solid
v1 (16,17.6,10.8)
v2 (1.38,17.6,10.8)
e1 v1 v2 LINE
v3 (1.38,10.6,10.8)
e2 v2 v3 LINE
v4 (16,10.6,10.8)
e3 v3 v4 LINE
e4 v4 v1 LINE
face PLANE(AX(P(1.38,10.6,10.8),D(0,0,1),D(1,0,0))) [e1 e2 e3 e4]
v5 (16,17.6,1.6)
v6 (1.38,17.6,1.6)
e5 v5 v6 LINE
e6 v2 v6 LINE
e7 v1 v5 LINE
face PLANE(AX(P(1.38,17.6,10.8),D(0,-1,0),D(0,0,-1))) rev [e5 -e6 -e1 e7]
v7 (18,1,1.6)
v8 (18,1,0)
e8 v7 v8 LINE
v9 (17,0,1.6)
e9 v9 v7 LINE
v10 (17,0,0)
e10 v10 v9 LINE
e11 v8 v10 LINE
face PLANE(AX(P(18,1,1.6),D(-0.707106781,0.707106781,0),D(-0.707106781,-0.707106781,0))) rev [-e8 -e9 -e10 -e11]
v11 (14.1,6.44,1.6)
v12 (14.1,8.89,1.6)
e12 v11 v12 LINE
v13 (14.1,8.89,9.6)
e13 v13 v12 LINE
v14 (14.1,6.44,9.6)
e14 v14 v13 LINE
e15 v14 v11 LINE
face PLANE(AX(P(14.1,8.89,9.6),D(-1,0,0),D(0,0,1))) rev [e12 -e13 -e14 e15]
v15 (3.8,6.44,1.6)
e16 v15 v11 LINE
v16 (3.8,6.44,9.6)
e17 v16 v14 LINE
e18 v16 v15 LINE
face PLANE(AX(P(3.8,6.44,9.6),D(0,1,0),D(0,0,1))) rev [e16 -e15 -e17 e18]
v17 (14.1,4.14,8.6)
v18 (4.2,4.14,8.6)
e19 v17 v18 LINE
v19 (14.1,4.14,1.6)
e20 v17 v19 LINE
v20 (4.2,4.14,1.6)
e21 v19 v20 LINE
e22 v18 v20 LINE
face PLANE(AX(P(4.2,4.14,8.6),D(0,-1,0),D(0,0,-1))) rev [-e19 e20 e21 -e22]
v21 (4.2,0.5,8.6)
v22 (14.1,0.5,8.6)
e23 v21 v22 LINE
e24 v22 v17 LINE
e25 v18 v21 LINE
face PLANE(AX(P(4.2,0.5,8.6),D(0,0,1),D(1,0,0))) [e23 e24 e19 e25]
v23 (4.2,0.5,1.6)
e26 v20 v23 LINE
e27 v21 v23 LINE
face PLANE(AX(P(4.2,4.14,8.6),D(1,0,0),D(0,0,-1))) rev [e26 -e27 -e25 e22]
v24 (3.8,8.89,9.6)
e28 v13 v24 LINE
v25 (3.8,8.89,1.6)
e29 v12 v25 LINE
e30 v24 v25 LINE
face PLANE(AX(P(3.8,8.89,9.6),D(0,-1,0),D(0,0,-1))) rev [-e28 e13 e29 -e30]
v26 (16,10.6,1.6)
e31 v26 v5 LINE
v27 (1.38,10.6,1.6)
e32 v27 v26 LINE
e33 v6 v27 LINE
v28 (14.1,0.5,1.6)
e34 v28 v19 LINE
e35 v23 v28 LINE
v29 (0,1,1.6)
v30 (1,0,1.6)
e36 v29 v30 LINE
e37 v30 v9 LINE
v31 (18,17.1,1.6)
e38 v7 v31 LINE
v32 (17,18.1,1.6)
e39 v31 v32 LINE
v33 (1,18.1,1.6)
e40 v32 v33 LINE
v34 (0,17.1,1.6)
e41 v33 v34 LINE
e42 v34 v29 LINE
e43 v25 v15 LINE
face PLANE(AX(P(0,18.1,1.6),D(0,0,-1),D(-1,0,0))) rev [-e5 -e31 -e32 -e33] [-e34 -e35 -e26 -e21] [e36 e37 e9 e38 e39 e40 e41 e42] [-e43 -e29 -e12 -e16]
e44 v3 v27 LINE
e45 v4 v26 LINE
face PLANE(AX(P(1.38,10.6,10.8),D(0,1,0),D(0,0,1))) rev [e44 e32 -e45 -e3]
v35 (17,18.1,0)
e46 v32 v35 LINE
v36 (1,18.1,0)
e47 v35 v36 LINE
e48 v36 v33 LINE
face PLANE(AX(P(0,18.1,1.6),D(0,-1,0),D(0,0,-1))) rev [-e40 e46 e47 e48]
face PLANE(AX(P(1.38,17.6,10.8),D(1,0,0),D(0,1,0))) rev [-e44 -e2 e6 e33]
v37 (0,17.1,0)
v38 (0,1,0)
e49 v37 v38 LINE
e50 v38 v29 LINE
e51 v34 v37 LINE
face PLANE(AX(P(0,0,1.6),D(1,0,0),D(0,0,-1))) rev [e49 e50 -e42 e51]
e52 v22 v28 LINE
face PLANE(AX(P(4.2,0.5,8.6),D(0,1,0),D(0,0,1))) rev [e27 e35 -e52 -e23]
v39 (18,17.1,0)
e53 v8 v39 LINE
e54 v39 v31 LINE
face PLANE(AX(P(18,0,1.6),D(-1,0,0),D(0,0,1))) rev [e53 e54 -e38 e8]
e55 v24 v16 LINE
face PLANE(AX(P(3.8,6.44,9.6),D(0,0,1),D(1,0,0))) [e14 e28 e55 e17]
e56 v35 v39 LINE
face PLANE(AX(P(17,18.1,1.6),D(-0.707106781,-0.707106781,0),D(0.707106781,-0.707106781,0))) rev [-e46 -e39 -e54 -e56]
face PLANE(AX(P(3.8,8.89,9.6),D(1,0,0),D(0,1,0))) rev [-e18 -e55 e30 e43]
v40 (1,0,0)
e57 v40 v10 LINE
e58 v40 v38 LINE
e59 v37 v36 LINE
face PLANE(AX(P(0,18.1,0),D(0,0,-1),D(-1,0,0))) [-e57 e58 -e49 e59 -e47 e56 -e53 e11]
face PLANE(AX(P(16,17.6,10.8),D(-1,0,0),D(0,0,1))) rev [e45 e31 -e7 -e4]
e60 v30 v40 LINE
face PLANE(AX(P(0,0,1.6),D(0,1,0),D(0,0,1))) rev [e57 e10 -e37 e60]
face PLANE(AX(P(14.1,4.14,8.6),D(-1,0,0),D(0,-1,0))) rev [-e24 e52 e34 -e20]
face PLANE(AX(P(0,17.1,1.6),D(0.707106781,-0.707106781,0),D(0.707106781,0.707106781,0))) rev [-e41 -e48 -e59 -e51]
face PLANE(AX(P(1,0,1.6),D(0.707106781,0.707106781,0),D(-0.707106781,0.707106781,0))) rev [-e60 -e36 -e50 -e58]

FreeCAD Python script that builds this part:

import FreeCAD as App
import Part
import Sketcher


def edges_at(feature, points):
    """Names of the edges that pass closest to the given points."""
    edges = feature.Shape.Edges
    near = lambda p: min(range(len(edges)), key=lambda i: edges[i].distToShape(Part.Vertex(*p))[0])
    return sorted({f"Edge{near(p) + 1}" for p in points})


def add_polygon(sketch, points):
    """Adds a closed chain of lines whose ends are joined by coincident constraints."""
    first, n = sketch.GeometryCount, len(points)
    for a, b in zip(points, points[1:] + points[:1]):
        sketch.addGeometry(Part.LineSegment(App.Vector(*a, 0), App.Vector(*b, 0)), False)
    for i in range(n):
        sketch.addConstraint(Sketcher.Constraint("Coincident", first + i, 2, first + (i + 1) % n, 1))

doc = App.newDocument("Part")
body = doc.addObject("PartDesign::Body", "Body")

sketch1 = doc.addObject("Sketcher::SketchObject", "Sketch")
body.addObject(sketch1)
sketch1.AttachmentSupport = (doc.XY_Plane, [""])
sketch1.MapMode = "FlatFace"
add_polygon(sketch1, [(0, 18), (0, 0), (18, 0), (18, 18)])
sketch1.addConstraint(Sketcher.Constraint("Vertical", 0))
sketch1.addConstraint(Sketcher.Constraint("Horizontal", 1))
sketch1.addConstraint(Sketcher.Constraint("Vertical", 2))
sketch1.addConstraint(Sketcher.Constraint("Horizontal", 3))
sketch1.addConstraint(Sketcher.Constraint("Coincident", 0, 2, -1, 1))
sketch1.addConstraint(Sketcher.Constraint("DistanceX", 1, 1, 1, 2, 18.0))
sketch1.addConstraint(Sketcher.Constraint("DistanceY", 0, 2, 0, 1, 18.1))
pad1 = doc.addObject("PartDesign::Pad", "Pad")
body.addObject(pad1)
pad1.Profile = sketch1
pad1.Length = 1.6
doc.recompute()

chamfer = doc.addObject("PartDesign::Chamfer", "Chamfer")
body.addObject(chamfer)
chamfer.Base = (pad1, edges_at(pad1, [
    (0, 18.1, 0.8),
    (18, 18.1, 0.8),
    (18, 0, 0.8),
    (0, 0, 0.8),
]))
chamfer.Size = 1

sketch2 = doc.addObject("Sketcher::SketchObject", "Sketch001")
body.addObject(sketch2)
sketch2.AttachmentSupport = (doc.XY_Plane, [""])
sketch2.MapMode = "FlatFace"
sketch2.AttachmentOffset = App.Placement(App.Vector(0, 0, 1.6), App.Rotation())
add_polygon(sketch2, [(4.2, 4.1), (4.2, 0.5), (14.1, 0.5), (14.1, 4.1)])
sketch2.addConstraint(Sketcher.Constraint("Vertical", 0))
sketch2.addConstraint(Sketcher.Constraint("Horizontal", 1))
sketch2.addConstraint(Sketcher.Constraint("Vertical", 2))
sketch2.addConstraint(Sketcher.Constraint("Horizontal", 3))
sketch2.addConstraint(Sketcher.Constraint("DistanceX", 1, 1, 1, 2, 9.9))
sketch2.addConstraint(Sketcher.Constraint("DistanceY", 0, 2, 0, 1, 3.64))
sketch2.addConstraint(Sketcher.Constraint("DistanceX", -1, 1, 0, 2, 4.2))
sketch2.addConstraint(Sketcher.Constraint("DistanceY", -1, 1, 0, 2, 0.5))
pad2 = doc.addObject("PartDesign::Pad", "Pad001")
body.addObject(pad2)
pad2.Profile = sketch2
pad2.Length = 7

sketch3 = doc.addObject("Sketcher::SketchObject", "Sketch002")
body.addObject(sketch3)
sketch3.AttachmentSupport = (doc.XY_Plane, [""])
sketch3.MapMode = "FlatFace"
sketch3.AttachmentOffset = App.Placement(App.Vector(0, 0, 1.6), App.Rotation())
add_polygon(sketch3, [(3.8, 8.9), (3.8, 6.4), (14.1, 6.4), (14.1, 8.9)])
sketch3.addConstraint(Sketcher.Constraint("Vertical", 0))
sketch3.addConstraint(Sketcher.Constraint("Horizontal", 1))
sketch3.addConstraint(Sketcher.Constraint("Vertical", 2))
sketch3.addConstraint(Sketcher.Constraint("Horizontal", 3))
sketch3.addConstraint(Sketcher.Constraint("DistanceX", 1, 1, 1, 2, 10.3))
sketch3.addConstraint(Sketcher.Constraint("DistanceY", 0, 2, 0, 1, 2.45))
sketch3.addConstraint(Sketcher.Constraint("DistanceX", -1, 1, 0, 2, 3.8))
sketch3.addConstraint(Sketcher.Constraint("DistanceY", -1, 1, 0, 2, 6.44))
pad3 = doc.addObject("PartDesign::Pad", "Pad002")
body.addObject(pad3)
pad3.Profile = sketch3
pad3.Length = 8

sketch4 = doc.addObject("Sketcher::SketchObject", "Sketch003")
body.addObject(sketch4)
sketch4.AttachmentSupport = (doc.XY_Plane, [""])
sketch4.MapMode = "FlatFace"
sketch4.AttachmentOffset = App.Placement(App.Vector(0, 0, 1.6), App.Rotation())
add_polygon(sketch4, [(1, 18), (1, 11), (16, 11), (16, 18)])
sketch4.addConstraint(Sketcher.Constraint("Vertical", 0))
sketch4.addConstraint(Sketcher.Constraint("Horizontal", 1))
sketch4.addConstraint(Sketcher.Constraint("Vertical", 2))
sketch4.addConstraint(Sketcher.Constraint("Horizontal", 3))
sketch4.addConstraint(Sketcher.Constraint("DistanceY", 0, 2, 0, 1, 7.0))
sketch4.addConstraint(Sketcher.Constraint("DistanceX", -1, 1, 1, 2, 16.0))
sketch4.addConstraint(Sketcher.Constraint("DistanceX", 1, 1, 1, 2, 14.62))
sketch4.addConstraint(Sketcher.Constraint("DistanceY", -1, 1, 0, 2, 10.6))
pad4 = doc.addObject("PartDesign::Pad", "Pad003")
body.addObject(pad4)
pad4.Profile = sketch4
pad4.Length = 9.2

doc.recompute()
